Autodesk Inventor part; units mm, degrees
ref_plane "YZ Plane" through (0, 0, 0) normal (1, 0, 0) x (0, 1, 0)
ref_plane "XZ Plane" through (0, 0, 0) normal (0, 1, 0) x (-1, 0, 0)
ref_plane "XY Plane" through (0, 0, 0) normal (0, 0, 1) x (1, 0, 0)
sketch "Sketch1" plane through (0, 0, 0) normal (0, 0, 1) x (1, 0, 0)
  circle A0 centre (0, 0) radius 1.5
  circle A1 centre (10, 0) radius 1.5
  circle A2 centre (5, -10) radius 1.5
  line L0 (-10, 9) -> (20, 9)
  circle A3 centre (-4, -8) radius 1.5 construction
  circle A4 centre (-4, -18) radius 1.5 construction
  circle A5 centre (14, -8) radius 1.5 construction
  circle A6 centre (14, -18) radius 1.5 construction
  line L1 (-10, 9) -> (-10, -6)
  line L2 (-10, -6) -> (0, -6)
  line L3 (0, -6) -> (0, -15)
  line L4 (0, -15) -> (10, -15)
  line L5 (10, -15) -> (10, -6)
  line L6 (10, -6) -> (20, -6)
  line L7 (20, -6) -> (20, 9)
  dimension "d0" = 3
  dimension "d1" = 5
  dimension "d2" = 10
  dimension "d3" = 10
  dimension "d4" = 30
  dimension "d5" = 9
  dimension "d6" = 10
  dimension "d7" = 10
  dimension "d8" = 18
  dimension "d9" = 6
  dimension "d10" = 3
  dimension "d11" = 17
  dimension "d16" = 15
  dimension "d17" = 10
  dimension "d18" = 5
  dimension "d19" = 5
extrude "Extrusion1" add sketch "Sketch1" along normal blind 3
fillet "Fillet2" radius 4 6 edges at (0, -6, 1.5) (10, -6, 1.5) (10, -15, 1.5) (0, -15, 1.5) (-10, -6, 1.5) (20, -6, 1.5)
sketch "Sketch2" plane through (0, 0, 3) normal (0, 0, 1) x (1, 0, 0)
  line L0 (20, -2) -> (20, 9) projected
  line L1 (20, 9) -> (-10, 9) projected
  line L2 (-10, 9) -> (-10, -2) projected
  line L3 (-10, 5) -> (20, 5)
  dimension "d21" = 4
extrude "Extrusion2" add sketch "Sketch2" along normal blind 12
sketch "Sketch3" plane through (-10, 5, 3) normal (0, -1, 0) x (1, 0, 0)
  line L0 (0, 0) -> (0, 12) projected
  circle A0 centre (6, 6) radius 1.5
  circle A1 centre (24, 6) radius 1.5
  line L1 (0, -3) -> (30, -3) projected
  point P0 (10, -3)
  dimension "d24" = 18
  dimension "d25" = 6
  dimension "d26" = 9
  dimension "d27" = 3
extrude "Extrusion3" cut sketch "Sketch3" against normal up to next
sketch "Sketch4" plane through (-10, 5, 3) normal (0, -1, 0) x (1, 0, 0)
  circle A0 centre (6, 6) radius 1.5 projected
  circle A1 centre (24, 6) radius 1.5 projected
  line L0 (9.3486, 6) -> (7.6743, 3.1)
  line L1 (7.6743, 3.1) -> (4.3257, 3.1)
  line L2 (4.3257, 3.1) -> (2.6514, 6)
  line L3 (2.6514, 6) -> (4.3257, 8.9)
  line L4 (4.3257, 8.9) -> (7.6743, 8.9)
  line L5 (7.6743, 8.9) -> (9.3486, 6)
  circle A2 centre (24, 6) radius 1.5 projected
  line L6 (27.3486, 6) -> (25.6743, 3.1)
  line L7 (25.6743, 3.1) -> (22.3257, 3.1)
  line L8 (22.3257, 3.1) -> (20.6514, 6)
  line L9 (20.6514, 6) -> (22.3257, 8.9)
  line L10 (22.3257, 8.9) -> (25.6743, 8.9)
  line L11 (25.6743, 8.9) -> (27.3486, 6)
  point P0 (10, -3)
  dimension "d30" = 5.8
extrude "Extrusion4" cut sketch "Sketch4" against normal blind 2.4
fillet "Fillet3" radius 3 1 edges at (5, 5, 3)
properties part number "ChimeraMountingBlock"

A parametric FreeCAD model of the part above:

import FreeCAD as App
import Part
import Sketcher

V = App.Vector
Q = App.Units.Quantity


def edges_at(feature, points):
    """Names of the edges that pass closest to the given points."""
    edges = feature.Shape.Edges
    near = lambda p: min(range(len(edges)), key=lambda i: edges[i].distToShape(Part.Vertex(*p))[0])
    return sorted({f"Edge{near(p) + 1}" for p in points})

doc = App.newDocument("Part")
body = doc.addObject("PartDesign::Body", "Body")

# Sketch on XY plane
sketch1 = doc.addObject("Sketcher::SketchObject", "Sketch")
body.addObject(sketch1)
sketch1.AttachmentSupport = (doc.XY_Plane, [""])
sketch1.MapMode = "FlatFace"
sketch1.addGeometry([
    Part.LineSegment(V(20, 9, 0), V(-10, 9, 0)),  # 0
    Part.LineSegment(V(-10, 9, 0), V(-10, -6, 0)),  # 1
    Part.LineSegment(V(-10, -6, 0), V(0, -6, 0)),  # 2
    Part.LineSegment(V(0, -6, 0), V(0, -15, 0)),  # 3
    Part.LineSegment(V(0, -15, 0), V(10, -15, 0)),  # 4
    Part.LineSegment(V(10, -15, 0), V(10, -6, 0)),  # 5
    Part.LineSegment(V(10, -6, 0), V(20, -6, 0)),  # 6
    Part.LineSegment(V(20, -6, 0), V(20, 9, 0)),  # 7
    Part.Circle(V(5, -10, 0), V(0, 0, 1), 1.5),  # 8
    Part.Circle(V(0, 0, 0), V(0, 0, 1), 1.5),  # 9
    Part.Circle(V(10, 0, 0), V(0, 0, 1), 1.5),  # 10
], False)
sketch1.addConstraint([
    Sketcher.Constraint("Coincident", 0, 2, 1, 1),
    Sketcher.Constraint("Coincident", 1, 2, 2, 1),
    Sketcher.Constraint("Coincident", 2, 2, 3, 1),
    Sketcher.Constraint("Coincident", 3, 2, 4, 1),
    Sketcher.Constraint("Coincident", 4, 2, 5, 1),
    Sketcher.Constraint("Coincident", 5, 2, 6, 1),
    Sketcher.Constraint("Coincident", 6, 2, 7, 1),
    Sketcher.Constraint("Coincident", 7, 2, 0, 1),
    Sketcher.Constraint("Horizontal", 0),
    Sketcher.Constraint("Vertical", 1),
    Sketcher.Constraint("Horizontal", 2),
    Sketcher.Constraint("Vertical", 3),
    Sketcher.Constraint("Horizontal", 4),
    Sketcher.Constraint("Vertical", 5),
    Sketcher.Constraint("Horizontal", 6),
    Sketcher.Constraint("Vertical", 7),
    Sketcher.Constraint("Coincident", 9, 3, -1, 1),
    Sketcher.Constraint("Equal", 8, 9),
    Sketcher.Constraint("Equal", 9, 10),
    Sketcher.Constraint("Symmetric", 1, 2, 5, 2, -2),
    Sketcher.Constraint("PointOnObject", 10, 3, -1),
    Sketcher.Constraint("PointOnObject", 2, 2, -2),
    Sketcher.Constraint("Vertical", 10, 3, 4, 2),
    Sketcher.Constraint("Equal", 4, 6),
    Sketcher.Constraint("Diameter", 8, 3.0),
    Sketcher.Constraint("DistanceX", 0, 2, 0, 1, 30.0),
    Sketcher.Constraint("DistanceY", 1, 2, 1, 1, 15.0),
    Sketcher.Constraint("DistanceY", 3, 2, 3, 1, 9.0),
    Sketcher.Constraint("DistanceX", -1, 1, 8, 3, 5.0),
    Sketcher.Constraint("DistanceY", 8, 3, -1, 1, 10.0),
    Sketcher.Constraint("DistanceY", -1, 1, 0, 2, 9.0),
])
pad1 = doc.addObject("PartDesign::Pad", "Pad")
body.addObject(pad1)
pad1.Profile = sketch1
pad1.Length = 3
doc.recompute()

fillet = doc.addObject("PartDesign::Fillet", "Fillet")
body.addObject(fillet)
fillet.Base = (pad1, edges_at(pad1, [
    (0, -6, 1.5),
    (10, -6, 1.5),
    (10, -15, 1.5),
    (0, -15, 1.5),
    (-10, -6, 1.5),
    (20, -6, 1.5),
]))
fillet.Radius = 4

# Sketch on XY plane
sketch2 = doc.addObject("Sketcher::SketchObject", "Sketch001")
body.addObject(sketch2)
sketch2.AttachmentSupport = (doc.XY_Plane, [""])
sketch2.MapMode = "FlatFace"
sketch2.AttachmentOffset = App.Placement(V(0, 0, 3), App.Rotation())
sketch2.addGeometry([
    Part.LineSegment(V(-10, 5, 0), V(20, 5, 0)),
    Part.LineSegment(V(20, 5, 0), V(20, 9, 0)),
    Part.LineSegment(V(20, 9, 0), V(-10, 9, 0)),
    Part.LineSegment(V(-10, 9, 0), V(-10, 5, 0)),
], False)
sketch2.addConstraint([
    Sketcher.Constraint("Coincident", 0, 2, 1, 1),
    Sketcher.Constraint("Coincident", 1, 2, 2, 1),
    Sketcher.Constraint("Coincident", 2, 2, 3, 1),
    Sketcher.Constraint("Coincident", 3, 2, 0, 1),
    Sketcher.Constraint("Horizontal", 0),
    Sketcher.Constraint("Vertical", 1),
    Sketcher.Constraint("Horizontal", 2),
    Sketcher.Constraint("Vertical", 3),
    Sketcher.Constraint("DistanceY", 1, 1, 1, 2, 4.0),
    Sketcher.Constraint("DistanceX", 0, 1, 0, 2, 30.0),
    Sketcher.Constraint("DistanceX", -1, 1, 0, 2, 20.0),
    Sketcher.Constraint("DistanceY", -1, 1, 0, 2, 5.0),
])
pad2 = doc.addObject("PartDesign::Pad", "Pad001")
body.addObject(pad2)
pad2.Profile = sketch2
pad2.Length = 12

# Sketch on XZ plane
sketch3 = doc.addObject("Sketcher::SketchObject", "Sketch002")
body.addObject(sketch3)
sketch3.AttachmentSupport = (doc.XZ_Plane, [""])
sketch3.MapMode = "FlatFace"
sketch3.AttachmentOffset = App.Placement(V(0, 0, -5), App.Rotation())
sketch3.addGeometry([
    Part.Circle(V(-4, 9, 0), V(0, 0, 1), 1.5),
    Part.Circle(V(14, 9, 0), V(0, 0, 1), 1.5),
], False)
sketch3.addConstraint([
    Sketcher.Constraint("Equal", 0, 1),
    Sketcher.Constraint("Horizontal", 0, 3, 1, 3),
    Sketcher.Constraint("Diameter", 0, 3.0),
    Sketcher.Constraint("DistanceY", -1, 1, 0, 3, 9.0),
    Sketcher.Constraint("DistanceX", 0, 3, 1, 3, 18.0),
    Sketcher.Constraint("DistanceX", 0, 3, -1, 1, 4.0),
])
pocket1 = doc.addObject("PartDesign::Pocket", "Pocket")
body.addObject(pocket1)
pocket1.Profile = sketch3
pocket1.Type = "UpToFirst"

# Sketch on XZ plane
sketch4 = doc.addObject("Sketcher::SketchObject", "Sketch003")
body.addObject(sketch4)
sketch4.AttachmentSupport = (doc.XZ_Plane, [""])
sketch4.MapMode = "FlatFace"
sketch4.AttachmentOffset = App.Placement(V(0, 0, -5), App.Rotation())
sketch4.addGeometry([
    Part.LineSegment(V(-2.3, 6.1, 0), V(-0.7, 9, 0)),  # 0
    Part.LineSegment(V(-0.7, 9, 0), V(-2.3, 11.9, 0)),  # 1
    Part.LineSegment(V(-2.3, 11.9, 0), V(-5.7, 11.9, 0)),  # 2
    Part.LineSegment(V(-5.7, 11.9, 0), V(-7.3, 9, 0)),  # 3
    Part.LineSegment(V(-7.3, 9, 0), V(-5.7, 6.1, 0)),  # 4
    Part.LineSegment(V(-5.7, 6.1, 0), V(-2.3, 6.1, 0)),  # 5
    Part.Circle(V(-4, 9, 0), V(0, 0, 1), 1.5),  # 6
    Part.LineSegment(V(15.7, 6.1, 0), V(17.3, 9, 0)),  # 7
    Part.LineSegment(V(17.3, 9, 0), V(15.7, 11.9, 0)),  # 8
    Part.LineSegment(V(15.7, 11.9, 0), V(12.3, 11.9, 0)),  # 9
    Part.LineSegment(V(12.3, 11.9, 0), V(10.7, 9, 0)),  # 10
    Part.LineSegment(V(10.7, 9, 0), V(12.3, 6.1, 0)),  # 11
    Part.LineSegment(V(12.3, 6.1, 0), V(15.7, 6.1, 0)),  # 12
    Part.Circle(V(14, 9, 0), V(0, 0, 1), 1.5),  # 13
], False)
sketch4.addConstraint([
    Sketcher.Constraint("Coincident", 0, 2, 1, 1),
    Sketcher.Constraint("Coincident", 1, 2, 2, 1),
    Sketcher.Constraint("Coincident", 2, 2, 3, 1),
    Sketcher.Constraint("Coincident", 3, 2, 4, 1),
    Sketcher.Constraint("Coincident", 4, 2, 5, 1),
    Sketcher.Constraint("Coincident", 5, 2, 0, 1),
    Sketcher.Constraint("Coincident", 7, 2, 8, 1),
    Sketcher.Constraint("Coincident", 8, 2, 9, 1),
    Sketcher.Constraint("Coincident", 9, 2, 10, 1),
    Sketcher.Constraint("Coincident", 10, 2, 11, 1),
    Sketcher.Constraint("Coincident", 11, 2, 12, 1),
    Sketcher.Constraint("Coincident", 12, 2, 7, 1),
    Sketcher.Constraint("Horizontal", 2),
    Sketcher.Constraint("Horizontal", 5),
    Sketcher.Constraint("Horizontal", 9),
    Sketcher.Constraint("Horizontal", 12),
    Sketcher.Constraint("Equal", 6, 13),
    Sketcher.Constraint("Parallel", 0, 3),
    Sketcher.Constraint("Parallel", 1, 4),
    Sketcher.Constraint("Parallel", 3, 7),
    Sketcher.Constraint("Parallel", 4, 8),
    Sketcher.Constraint("Parallel", 7, 10),
    Sketcher.Constraint("Parallel", 8, 11),
    Sketcher.Constraint("Horizontal", 6, 3, 13, 3),
    Sketcher.Constraint("Horizontal", 13, 3, 0, 2),
    Sketcher.Constraint("Horizontal", 0, 2, 3, 2),
    Sketcher.Constraint("Horizontal", 3, 2, 7, 2),
    Sketcher.Constraint("Horizontal", 2, 2, 8, 2),
    Sketcher.Constraint("Horizontal", 7, 2, 10, 2),
    Sketcher.Constraint("Horizontal", 5, 2, 11, 2),
    Sketcher.Constraint("Vertical", 2, 2, 4, 2),
    Sketcher.Constraint("Vertical", 1, 2, 5, 2),
    Sketcher.Constraint("Equal", 5, 9),
    Sketcher.Constraint("Diameter", 6, 3.0),
    Sketcher.Constraint("DistanceY", 4, 2, 2, 2, 5.8),
    Sketcher.Constraint("Angle", 0, Q("60.0002 deg")),
    Sketcher.Constraint("DistanceX", 6, 3, -1, 1, 4.0),
    Sketcher.Constraint("DistanceY", -1, 1, 6, 3, 9.0),
    Sketcher.Constraint("DistanceX", -1, 1, 13, 3, 14.0),
    Sketcher.Constraint("DistanceX", 0, 2, 7, 2, 18.0),
    Sketcher.Constraint("DistanceX", 2, 2, 2, 1, 3.3486),
    Sketcher.Constraint("DistanceX", 0, 2, -1, 1, 0.6514),
])
pocket2 = doc.addObject("PartDesign::Pocket", "Pocket001")
body.addObject(pocket2)
pocket2.Profile = sketch4
pocket2.Length = 2.4
doc.recompute()

fillet2 = doc.addObject("PartDesign::Fillet", "Fillet001")
body.addObject(fillet2)
fillet2.Base = (pocket2, edges_at(pocket2, [(5, 5, 3)]))
fillet2.Radius = 3

doc.recompute()
